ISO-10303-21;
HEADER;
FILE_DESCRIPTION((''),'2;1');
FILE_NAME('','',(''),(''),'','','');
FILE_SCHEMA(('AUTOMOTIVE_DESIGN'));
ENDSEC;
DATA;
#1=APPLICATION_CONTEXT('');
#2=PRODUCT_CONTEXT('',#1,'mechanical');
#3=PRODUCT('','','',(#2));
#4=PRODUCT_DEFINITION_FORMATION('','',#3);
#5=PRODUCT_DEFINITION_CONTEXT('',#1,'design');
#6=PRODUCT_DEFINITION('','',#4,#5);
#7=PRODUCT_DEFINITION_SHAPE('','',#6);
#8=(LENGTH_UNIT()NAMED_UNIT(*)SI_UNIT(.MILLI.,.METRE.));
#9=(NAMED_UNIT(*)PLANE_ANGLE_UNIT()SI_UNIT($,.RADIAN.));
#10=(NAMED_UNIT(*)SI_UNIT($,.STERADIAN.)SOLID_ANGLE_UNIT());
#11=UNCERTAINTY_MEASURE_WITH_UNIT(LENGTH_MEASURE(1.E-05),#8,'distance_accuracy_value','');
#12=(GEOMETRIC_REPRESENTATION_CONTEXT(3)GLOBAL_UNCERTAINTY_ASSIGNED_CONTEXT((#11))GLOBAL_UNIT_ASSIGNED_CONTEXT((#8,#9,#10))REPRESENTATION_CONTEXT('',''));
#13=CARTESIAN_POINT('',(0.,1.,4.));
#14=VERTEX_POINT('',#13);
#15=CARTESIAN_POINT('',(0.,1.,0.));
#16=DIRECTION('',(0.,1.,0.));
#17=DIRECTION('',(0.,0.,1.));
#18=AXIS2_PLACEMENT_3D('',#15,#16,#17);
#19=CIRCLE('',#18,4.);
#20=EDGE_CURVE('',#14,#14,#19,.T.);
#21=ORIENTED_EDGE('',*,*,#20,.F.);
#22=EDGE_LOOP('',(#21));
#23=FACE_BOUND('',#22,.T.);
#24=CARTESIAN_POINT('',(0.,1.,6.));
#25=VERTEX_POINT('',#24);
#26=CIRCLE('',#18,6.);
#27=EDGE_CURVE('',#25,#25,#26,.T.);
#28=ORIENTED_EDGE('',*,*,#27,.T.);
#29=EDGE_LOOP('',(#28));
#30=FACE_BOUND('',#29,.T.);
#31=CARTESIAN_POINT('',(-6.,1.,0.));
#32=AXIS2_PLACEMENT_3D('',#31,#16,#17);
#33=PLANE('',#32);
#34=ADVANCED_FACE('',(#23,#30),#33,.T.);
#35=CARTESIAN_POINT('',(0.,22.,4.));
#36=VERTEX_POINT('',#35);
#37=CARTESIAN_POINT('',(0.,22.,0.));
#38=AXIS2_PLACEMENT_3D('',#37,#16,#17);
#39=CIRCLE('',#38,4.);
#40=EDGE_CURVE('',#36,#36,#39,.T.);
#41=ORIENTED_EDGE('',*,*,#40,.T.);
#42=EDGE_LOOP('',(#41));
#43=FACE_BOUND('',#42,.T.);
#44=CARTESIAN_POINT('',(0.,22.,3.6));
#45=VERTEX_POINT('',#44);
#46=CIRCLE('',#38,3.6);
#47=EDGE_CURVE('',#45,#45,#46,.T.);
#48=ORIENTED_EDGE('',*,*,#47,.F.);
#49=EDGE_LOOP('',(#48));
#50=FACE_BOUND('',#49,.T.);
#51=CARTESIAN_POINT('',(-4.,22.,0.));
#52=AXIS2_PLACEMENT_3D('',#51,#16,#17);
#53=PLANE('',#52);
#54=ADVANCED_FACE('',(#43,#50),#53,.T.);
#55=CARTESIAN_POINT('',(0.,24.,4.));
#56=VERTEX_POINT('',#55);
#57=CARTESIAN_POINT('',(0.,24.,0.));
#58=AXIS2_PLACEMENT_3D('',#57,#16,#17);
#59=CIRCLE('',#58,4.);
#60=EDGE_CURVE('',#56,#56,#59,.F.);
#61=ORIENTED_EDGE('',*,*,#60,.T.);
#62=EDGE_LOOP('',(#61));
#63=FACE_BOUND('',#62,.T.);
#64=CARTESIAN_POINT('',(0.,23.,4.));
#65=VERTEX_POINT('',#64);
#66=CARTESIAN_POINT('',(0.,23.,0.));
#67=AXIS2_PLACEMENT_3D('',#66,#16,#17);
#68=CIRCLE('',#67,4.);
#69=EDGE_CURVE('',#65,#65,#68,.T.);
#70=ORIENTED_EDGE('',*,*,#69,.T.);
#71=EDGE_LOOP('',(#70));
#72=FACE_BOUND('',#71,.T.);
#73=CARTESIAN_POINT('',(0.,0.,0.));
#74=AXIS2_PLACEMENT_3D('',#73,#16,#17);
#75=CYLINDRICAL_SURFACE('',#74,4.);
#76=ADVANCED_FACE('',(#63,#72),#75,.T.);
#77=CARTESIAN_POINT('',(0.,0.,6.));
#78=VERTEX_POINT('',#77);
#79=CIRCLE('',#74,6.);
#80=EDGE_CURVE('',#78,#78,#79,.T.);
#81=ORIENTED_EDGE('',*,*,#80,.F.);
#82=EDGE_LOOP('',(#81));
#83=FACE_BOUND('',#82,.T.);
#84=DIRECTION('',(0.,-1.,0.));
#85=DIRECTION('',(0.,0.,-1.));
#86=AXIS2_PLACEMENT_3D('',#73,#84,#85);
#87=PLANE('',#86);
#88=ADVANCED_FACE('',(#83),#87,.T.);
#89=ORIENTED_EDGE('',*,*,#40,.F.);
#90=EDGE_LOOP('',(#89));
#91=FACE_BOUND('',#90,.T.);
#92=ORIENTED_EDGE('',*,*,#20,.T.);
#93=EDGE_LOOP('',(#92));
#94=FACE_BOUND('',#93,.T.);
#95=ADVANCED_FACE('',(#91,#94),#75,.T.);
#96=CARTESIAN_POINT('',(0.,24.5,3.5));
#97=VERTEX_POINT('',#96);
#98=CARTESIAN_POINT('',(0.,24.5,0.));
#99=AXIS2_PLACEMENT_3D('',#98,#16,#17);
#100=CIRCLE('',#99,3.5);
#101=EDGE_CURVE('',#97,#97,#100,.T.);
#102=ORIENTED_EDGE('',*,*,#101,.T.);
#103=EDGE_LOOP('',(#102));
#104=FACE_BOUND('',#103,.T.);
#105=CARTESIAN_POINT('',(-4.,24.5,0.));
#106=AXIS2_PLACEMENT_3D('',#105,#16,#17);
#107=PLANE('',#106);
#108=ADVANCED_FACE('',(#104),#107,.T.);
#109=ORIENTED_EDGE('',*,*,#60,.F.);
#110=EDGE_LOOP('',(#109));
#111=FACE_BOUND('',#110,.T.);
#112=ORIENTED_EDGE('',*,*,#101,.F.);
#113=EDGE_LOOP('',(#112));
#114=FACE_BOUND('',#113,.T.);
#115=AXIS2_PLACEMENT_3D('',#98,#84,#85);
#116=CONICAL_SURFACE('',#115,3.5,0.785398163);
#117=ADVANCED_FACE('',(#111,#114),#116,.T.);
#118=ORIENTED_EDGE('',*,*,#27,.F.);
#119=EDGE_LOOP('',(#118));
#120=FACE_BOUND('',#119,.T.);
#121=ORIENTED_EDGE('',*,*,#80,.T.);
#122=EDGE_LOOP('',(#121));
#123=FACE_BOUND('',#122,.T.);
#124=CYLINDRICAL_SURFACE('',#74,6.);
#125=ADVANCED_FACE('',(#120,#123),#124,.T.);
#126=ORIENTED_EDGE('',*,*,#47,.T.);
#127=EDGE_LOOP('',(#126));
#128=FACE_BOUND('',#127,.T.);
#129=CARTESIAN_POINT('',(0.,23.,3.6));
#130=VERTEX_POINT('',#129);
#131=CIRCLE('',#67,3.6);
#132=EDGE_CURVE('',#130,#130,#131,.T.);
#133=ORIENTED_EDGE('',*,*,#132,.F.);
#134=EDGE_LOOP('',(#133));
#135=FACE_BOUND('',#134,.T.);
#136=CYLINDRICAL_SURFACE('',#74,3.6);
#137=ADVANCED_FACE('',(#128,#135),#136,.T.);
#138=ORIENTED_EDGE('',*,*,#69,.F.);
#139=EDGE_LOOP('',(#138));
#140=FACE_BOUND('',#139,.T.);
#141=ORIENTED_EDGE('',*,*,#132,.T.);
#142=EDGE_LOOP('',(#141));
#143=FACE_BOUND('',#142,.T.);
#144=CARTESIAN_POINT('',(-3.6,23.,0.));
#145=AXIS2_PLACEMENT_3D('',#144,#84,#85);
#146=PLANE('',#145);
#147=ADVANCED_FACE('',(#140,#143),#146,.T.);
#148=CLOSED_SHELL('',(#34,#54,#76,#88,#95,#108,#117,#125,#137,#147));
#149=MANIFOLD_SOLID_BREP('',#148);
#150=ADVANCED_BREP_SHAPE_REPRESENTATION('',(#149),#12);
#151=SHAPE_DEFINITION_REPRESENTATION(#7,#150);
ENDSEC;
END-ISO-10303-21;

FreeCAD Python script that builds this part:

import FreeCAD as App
import Part
import Sketcher

V = App.Vector
Q = App.Units.Quantity


def edges_at(feature, points):
    """Names of the edges that pass closest to the given points."""
    edges = feature.Shape.Edges
    near = lambda p: min(range(len(edges)), key=lambda i: edges[i].distToShape(Part.Vertex(*p))[0])
    return sorted({f"Edge{near(p) + 1}" for p in points})

doc = App.newDocument("Part")
params = doc.addObject("Spreadsheet::Sheet", "Params")
for row, (alias, value) in enumerate([
    ("sketch1_width", "4 mm"),
    ("sketch1_width2", "2 mm"),
    ("sketch1_height", "1 mm"),
    ("sketch1_height2", "21 mm"),
    ("sketch1_width3", "0.4 mm"),
    ("revolution_angle", "360 deg"),
    ("chamfer_size", "0.5 mm"),
], start=1):
    params.set(f"A{row}", alias)
    params.set(f"B{row}", "=" + value)
    params.setAlias(f"B{row}", alias)

body = doc.addObject("PartDesign::Body", "Body")

sketch1 = body.newObject("Sketcher::SketchObject", "Sketch")
sketch1.AttachmentSupport = (doc.getObject("XY_Plane"), [""])
sketch1.MapMode = "FlatFace"
sketch1.addGeometry(Part.LineSegment(V(0, 24.5, 0), V(-4, 24.5, 0)), False)
sketch1.addGeometry(Part.LineSegment(V(-4, 24.5, 0), V(-4, 23, 0)), False)
sketch1.addGeometry(Part.LineSegment(V(-4, 23, 0), V(-3.6, 23, 0)), False)
sketch1.addGeometry(Part.LineSegment(V(-3.6, 23, 0), V(-3.6, 22, 0)), False)
sketch1.addGeometry(Part.LineSegment(V(-3.6, 22, 0), V(-4, 22, 0)), False)
sketch1.addGeometry(Part.LineSegment(V(-4, 22, 0), V(-4, 1, 0)), False)
sketch1.addGeometry(Part.LineSegment(V(-4, 1, 0), V(-6, 1, 0)), False)
sketch1.addGeometry(Part.LineSegment(V(-6, 1, 0), V(-6, 0, 0)), False)
sketch1.addGeometry(Part.LineSegment(V(-6, 0, 0), V(0, 0, 0)), False)
sketch1.addGeometry(Part.LineSegment(V(0, 0, 0), V(0, 24.5, 0)), False)
sketch1.addConstraint(Sketcher.Constraint("Coincident", 0, 2, 1, 1))
sketch1.addConstraint(Sketcher.Constraint("Coincident", 1, 2, 2, 1))
sketch1.addConstraint(Sketcher.Constraint("Coincident", 2, 2, 3, 1))
sketch1.addConstraint(Sketcher.Constraint("Coincident", 3, 2, 4, 1))
sketch1.addConstraint(Sketcher.Constraint("Coincident", 4, 2, 5, 1))
sketch1.addConstraint(Sketcher.Constraint("Coincident", 5, 2, 6, 1))
sketch1.addConstraint(Sketcher.Constraint("Coincident", 6, 2, 7, 1))
sketch1.addConstraint(Sketcher.Constraint("Coincident", 7, 2, 8, 1))
sketch1.addConstraint(Sketcher.Constraint("Coincident", 8, 2, 9, 1))
sketch1.addConstraint(Sketcher.Constraint("Coincident", 9, 2, 0, 1))
sketch1.addConstraint(Sketcher.Constraint("Horizontal", 0))
sketch1.addConstraint(Sketcher.Constraint("Vertical", 1))
sketch1.addConstraint(Sketcher.Constraint("Horizontal", 2))
sketch1.addConstraint(Sketcher.Constraint("Vertical", 3))
sketch1.addConstraint(Sketcher.Constraint("Horizontal", 4))
sketch1.addConstraint(Sketcher.Constraint("Vertical", 5))
sketch1.addConstraint(Sketcher.Constraint("Horizontal", 6))
sketch1.addConstraint(Sketcher.Constraint("Vertical", 7))
sketch1.addConstraint(Sketcher.Constraint("Horizontal", 8))
sketch1.addConstraint(Sketcher.Constraint("Vertical", 9))
sketch1.addConstraint(Sketcher.Constraint("Coincident", 8, 2, -1, 1))
sketch1.addConstraint(Sketcher.Constraint("Vertical", 1, 2, 4, 2))
sketch1.addConstraint(Sketcher.Constraint("Equal", 3, 7))
sketch1.addConstraint(Sketcher.Constraint("DistanceX", 0, 2, 0, 1, Q("4 mm")))
sketch1.addConstraint(Sketcher.Constraint("DistanceX", 6, 2, 6, 1, Q("2 mm")))
sketch1.addConstraint(Sketcher.Constraint("DistanceY", 3, 2, 3, 1, Q("1 mm")))
sketch1.addConstraint(Sketcher.Constraint("DistanceY", 5, 2, 5, 1, Q("21 mm")))
sketch1.addConstraint(Sketcher.Constraint("DistanceX", 2, 1, 2, 2, Q("0.4 mm")))
sketch1.addConstraint(Sketcher.Constraint("DistanceY", 1, 2, 1, 1, Q("1.5 mm")))
sketch1.setExpression("Constraints[23]", "Params.sketch1_width")
sketch1.setExpression("Constraints[24]", "Params.sketch1_width2")
sketch1.setExpression("Constraints[25]", "Params.sketch1_height")
sketch1.setExpression("Constraints[26]", "Params.sketch1_height2")
sketch1.setExpression("Constraints[27]", "Params.sketch1_width3")
revolution = body.newObject("PartDesign::Revolution", "Revolution")
revolution.Profile = sketch1
revolution.ReferenceAxis = (sketch1, ["V_Axis"])
revolution.setExpression("Angle", "Params.revolution_angle")
doc.recompute()

chamfer = body.newObject("PartDesign::Chamfer", "Chamfer")
chamfer.Base = (revolution, edges_at(revolution, [(0, 24.5, -4)]))
chamfer.setExpression("Size", "Params.chamfer_size")

doc.recompute()
